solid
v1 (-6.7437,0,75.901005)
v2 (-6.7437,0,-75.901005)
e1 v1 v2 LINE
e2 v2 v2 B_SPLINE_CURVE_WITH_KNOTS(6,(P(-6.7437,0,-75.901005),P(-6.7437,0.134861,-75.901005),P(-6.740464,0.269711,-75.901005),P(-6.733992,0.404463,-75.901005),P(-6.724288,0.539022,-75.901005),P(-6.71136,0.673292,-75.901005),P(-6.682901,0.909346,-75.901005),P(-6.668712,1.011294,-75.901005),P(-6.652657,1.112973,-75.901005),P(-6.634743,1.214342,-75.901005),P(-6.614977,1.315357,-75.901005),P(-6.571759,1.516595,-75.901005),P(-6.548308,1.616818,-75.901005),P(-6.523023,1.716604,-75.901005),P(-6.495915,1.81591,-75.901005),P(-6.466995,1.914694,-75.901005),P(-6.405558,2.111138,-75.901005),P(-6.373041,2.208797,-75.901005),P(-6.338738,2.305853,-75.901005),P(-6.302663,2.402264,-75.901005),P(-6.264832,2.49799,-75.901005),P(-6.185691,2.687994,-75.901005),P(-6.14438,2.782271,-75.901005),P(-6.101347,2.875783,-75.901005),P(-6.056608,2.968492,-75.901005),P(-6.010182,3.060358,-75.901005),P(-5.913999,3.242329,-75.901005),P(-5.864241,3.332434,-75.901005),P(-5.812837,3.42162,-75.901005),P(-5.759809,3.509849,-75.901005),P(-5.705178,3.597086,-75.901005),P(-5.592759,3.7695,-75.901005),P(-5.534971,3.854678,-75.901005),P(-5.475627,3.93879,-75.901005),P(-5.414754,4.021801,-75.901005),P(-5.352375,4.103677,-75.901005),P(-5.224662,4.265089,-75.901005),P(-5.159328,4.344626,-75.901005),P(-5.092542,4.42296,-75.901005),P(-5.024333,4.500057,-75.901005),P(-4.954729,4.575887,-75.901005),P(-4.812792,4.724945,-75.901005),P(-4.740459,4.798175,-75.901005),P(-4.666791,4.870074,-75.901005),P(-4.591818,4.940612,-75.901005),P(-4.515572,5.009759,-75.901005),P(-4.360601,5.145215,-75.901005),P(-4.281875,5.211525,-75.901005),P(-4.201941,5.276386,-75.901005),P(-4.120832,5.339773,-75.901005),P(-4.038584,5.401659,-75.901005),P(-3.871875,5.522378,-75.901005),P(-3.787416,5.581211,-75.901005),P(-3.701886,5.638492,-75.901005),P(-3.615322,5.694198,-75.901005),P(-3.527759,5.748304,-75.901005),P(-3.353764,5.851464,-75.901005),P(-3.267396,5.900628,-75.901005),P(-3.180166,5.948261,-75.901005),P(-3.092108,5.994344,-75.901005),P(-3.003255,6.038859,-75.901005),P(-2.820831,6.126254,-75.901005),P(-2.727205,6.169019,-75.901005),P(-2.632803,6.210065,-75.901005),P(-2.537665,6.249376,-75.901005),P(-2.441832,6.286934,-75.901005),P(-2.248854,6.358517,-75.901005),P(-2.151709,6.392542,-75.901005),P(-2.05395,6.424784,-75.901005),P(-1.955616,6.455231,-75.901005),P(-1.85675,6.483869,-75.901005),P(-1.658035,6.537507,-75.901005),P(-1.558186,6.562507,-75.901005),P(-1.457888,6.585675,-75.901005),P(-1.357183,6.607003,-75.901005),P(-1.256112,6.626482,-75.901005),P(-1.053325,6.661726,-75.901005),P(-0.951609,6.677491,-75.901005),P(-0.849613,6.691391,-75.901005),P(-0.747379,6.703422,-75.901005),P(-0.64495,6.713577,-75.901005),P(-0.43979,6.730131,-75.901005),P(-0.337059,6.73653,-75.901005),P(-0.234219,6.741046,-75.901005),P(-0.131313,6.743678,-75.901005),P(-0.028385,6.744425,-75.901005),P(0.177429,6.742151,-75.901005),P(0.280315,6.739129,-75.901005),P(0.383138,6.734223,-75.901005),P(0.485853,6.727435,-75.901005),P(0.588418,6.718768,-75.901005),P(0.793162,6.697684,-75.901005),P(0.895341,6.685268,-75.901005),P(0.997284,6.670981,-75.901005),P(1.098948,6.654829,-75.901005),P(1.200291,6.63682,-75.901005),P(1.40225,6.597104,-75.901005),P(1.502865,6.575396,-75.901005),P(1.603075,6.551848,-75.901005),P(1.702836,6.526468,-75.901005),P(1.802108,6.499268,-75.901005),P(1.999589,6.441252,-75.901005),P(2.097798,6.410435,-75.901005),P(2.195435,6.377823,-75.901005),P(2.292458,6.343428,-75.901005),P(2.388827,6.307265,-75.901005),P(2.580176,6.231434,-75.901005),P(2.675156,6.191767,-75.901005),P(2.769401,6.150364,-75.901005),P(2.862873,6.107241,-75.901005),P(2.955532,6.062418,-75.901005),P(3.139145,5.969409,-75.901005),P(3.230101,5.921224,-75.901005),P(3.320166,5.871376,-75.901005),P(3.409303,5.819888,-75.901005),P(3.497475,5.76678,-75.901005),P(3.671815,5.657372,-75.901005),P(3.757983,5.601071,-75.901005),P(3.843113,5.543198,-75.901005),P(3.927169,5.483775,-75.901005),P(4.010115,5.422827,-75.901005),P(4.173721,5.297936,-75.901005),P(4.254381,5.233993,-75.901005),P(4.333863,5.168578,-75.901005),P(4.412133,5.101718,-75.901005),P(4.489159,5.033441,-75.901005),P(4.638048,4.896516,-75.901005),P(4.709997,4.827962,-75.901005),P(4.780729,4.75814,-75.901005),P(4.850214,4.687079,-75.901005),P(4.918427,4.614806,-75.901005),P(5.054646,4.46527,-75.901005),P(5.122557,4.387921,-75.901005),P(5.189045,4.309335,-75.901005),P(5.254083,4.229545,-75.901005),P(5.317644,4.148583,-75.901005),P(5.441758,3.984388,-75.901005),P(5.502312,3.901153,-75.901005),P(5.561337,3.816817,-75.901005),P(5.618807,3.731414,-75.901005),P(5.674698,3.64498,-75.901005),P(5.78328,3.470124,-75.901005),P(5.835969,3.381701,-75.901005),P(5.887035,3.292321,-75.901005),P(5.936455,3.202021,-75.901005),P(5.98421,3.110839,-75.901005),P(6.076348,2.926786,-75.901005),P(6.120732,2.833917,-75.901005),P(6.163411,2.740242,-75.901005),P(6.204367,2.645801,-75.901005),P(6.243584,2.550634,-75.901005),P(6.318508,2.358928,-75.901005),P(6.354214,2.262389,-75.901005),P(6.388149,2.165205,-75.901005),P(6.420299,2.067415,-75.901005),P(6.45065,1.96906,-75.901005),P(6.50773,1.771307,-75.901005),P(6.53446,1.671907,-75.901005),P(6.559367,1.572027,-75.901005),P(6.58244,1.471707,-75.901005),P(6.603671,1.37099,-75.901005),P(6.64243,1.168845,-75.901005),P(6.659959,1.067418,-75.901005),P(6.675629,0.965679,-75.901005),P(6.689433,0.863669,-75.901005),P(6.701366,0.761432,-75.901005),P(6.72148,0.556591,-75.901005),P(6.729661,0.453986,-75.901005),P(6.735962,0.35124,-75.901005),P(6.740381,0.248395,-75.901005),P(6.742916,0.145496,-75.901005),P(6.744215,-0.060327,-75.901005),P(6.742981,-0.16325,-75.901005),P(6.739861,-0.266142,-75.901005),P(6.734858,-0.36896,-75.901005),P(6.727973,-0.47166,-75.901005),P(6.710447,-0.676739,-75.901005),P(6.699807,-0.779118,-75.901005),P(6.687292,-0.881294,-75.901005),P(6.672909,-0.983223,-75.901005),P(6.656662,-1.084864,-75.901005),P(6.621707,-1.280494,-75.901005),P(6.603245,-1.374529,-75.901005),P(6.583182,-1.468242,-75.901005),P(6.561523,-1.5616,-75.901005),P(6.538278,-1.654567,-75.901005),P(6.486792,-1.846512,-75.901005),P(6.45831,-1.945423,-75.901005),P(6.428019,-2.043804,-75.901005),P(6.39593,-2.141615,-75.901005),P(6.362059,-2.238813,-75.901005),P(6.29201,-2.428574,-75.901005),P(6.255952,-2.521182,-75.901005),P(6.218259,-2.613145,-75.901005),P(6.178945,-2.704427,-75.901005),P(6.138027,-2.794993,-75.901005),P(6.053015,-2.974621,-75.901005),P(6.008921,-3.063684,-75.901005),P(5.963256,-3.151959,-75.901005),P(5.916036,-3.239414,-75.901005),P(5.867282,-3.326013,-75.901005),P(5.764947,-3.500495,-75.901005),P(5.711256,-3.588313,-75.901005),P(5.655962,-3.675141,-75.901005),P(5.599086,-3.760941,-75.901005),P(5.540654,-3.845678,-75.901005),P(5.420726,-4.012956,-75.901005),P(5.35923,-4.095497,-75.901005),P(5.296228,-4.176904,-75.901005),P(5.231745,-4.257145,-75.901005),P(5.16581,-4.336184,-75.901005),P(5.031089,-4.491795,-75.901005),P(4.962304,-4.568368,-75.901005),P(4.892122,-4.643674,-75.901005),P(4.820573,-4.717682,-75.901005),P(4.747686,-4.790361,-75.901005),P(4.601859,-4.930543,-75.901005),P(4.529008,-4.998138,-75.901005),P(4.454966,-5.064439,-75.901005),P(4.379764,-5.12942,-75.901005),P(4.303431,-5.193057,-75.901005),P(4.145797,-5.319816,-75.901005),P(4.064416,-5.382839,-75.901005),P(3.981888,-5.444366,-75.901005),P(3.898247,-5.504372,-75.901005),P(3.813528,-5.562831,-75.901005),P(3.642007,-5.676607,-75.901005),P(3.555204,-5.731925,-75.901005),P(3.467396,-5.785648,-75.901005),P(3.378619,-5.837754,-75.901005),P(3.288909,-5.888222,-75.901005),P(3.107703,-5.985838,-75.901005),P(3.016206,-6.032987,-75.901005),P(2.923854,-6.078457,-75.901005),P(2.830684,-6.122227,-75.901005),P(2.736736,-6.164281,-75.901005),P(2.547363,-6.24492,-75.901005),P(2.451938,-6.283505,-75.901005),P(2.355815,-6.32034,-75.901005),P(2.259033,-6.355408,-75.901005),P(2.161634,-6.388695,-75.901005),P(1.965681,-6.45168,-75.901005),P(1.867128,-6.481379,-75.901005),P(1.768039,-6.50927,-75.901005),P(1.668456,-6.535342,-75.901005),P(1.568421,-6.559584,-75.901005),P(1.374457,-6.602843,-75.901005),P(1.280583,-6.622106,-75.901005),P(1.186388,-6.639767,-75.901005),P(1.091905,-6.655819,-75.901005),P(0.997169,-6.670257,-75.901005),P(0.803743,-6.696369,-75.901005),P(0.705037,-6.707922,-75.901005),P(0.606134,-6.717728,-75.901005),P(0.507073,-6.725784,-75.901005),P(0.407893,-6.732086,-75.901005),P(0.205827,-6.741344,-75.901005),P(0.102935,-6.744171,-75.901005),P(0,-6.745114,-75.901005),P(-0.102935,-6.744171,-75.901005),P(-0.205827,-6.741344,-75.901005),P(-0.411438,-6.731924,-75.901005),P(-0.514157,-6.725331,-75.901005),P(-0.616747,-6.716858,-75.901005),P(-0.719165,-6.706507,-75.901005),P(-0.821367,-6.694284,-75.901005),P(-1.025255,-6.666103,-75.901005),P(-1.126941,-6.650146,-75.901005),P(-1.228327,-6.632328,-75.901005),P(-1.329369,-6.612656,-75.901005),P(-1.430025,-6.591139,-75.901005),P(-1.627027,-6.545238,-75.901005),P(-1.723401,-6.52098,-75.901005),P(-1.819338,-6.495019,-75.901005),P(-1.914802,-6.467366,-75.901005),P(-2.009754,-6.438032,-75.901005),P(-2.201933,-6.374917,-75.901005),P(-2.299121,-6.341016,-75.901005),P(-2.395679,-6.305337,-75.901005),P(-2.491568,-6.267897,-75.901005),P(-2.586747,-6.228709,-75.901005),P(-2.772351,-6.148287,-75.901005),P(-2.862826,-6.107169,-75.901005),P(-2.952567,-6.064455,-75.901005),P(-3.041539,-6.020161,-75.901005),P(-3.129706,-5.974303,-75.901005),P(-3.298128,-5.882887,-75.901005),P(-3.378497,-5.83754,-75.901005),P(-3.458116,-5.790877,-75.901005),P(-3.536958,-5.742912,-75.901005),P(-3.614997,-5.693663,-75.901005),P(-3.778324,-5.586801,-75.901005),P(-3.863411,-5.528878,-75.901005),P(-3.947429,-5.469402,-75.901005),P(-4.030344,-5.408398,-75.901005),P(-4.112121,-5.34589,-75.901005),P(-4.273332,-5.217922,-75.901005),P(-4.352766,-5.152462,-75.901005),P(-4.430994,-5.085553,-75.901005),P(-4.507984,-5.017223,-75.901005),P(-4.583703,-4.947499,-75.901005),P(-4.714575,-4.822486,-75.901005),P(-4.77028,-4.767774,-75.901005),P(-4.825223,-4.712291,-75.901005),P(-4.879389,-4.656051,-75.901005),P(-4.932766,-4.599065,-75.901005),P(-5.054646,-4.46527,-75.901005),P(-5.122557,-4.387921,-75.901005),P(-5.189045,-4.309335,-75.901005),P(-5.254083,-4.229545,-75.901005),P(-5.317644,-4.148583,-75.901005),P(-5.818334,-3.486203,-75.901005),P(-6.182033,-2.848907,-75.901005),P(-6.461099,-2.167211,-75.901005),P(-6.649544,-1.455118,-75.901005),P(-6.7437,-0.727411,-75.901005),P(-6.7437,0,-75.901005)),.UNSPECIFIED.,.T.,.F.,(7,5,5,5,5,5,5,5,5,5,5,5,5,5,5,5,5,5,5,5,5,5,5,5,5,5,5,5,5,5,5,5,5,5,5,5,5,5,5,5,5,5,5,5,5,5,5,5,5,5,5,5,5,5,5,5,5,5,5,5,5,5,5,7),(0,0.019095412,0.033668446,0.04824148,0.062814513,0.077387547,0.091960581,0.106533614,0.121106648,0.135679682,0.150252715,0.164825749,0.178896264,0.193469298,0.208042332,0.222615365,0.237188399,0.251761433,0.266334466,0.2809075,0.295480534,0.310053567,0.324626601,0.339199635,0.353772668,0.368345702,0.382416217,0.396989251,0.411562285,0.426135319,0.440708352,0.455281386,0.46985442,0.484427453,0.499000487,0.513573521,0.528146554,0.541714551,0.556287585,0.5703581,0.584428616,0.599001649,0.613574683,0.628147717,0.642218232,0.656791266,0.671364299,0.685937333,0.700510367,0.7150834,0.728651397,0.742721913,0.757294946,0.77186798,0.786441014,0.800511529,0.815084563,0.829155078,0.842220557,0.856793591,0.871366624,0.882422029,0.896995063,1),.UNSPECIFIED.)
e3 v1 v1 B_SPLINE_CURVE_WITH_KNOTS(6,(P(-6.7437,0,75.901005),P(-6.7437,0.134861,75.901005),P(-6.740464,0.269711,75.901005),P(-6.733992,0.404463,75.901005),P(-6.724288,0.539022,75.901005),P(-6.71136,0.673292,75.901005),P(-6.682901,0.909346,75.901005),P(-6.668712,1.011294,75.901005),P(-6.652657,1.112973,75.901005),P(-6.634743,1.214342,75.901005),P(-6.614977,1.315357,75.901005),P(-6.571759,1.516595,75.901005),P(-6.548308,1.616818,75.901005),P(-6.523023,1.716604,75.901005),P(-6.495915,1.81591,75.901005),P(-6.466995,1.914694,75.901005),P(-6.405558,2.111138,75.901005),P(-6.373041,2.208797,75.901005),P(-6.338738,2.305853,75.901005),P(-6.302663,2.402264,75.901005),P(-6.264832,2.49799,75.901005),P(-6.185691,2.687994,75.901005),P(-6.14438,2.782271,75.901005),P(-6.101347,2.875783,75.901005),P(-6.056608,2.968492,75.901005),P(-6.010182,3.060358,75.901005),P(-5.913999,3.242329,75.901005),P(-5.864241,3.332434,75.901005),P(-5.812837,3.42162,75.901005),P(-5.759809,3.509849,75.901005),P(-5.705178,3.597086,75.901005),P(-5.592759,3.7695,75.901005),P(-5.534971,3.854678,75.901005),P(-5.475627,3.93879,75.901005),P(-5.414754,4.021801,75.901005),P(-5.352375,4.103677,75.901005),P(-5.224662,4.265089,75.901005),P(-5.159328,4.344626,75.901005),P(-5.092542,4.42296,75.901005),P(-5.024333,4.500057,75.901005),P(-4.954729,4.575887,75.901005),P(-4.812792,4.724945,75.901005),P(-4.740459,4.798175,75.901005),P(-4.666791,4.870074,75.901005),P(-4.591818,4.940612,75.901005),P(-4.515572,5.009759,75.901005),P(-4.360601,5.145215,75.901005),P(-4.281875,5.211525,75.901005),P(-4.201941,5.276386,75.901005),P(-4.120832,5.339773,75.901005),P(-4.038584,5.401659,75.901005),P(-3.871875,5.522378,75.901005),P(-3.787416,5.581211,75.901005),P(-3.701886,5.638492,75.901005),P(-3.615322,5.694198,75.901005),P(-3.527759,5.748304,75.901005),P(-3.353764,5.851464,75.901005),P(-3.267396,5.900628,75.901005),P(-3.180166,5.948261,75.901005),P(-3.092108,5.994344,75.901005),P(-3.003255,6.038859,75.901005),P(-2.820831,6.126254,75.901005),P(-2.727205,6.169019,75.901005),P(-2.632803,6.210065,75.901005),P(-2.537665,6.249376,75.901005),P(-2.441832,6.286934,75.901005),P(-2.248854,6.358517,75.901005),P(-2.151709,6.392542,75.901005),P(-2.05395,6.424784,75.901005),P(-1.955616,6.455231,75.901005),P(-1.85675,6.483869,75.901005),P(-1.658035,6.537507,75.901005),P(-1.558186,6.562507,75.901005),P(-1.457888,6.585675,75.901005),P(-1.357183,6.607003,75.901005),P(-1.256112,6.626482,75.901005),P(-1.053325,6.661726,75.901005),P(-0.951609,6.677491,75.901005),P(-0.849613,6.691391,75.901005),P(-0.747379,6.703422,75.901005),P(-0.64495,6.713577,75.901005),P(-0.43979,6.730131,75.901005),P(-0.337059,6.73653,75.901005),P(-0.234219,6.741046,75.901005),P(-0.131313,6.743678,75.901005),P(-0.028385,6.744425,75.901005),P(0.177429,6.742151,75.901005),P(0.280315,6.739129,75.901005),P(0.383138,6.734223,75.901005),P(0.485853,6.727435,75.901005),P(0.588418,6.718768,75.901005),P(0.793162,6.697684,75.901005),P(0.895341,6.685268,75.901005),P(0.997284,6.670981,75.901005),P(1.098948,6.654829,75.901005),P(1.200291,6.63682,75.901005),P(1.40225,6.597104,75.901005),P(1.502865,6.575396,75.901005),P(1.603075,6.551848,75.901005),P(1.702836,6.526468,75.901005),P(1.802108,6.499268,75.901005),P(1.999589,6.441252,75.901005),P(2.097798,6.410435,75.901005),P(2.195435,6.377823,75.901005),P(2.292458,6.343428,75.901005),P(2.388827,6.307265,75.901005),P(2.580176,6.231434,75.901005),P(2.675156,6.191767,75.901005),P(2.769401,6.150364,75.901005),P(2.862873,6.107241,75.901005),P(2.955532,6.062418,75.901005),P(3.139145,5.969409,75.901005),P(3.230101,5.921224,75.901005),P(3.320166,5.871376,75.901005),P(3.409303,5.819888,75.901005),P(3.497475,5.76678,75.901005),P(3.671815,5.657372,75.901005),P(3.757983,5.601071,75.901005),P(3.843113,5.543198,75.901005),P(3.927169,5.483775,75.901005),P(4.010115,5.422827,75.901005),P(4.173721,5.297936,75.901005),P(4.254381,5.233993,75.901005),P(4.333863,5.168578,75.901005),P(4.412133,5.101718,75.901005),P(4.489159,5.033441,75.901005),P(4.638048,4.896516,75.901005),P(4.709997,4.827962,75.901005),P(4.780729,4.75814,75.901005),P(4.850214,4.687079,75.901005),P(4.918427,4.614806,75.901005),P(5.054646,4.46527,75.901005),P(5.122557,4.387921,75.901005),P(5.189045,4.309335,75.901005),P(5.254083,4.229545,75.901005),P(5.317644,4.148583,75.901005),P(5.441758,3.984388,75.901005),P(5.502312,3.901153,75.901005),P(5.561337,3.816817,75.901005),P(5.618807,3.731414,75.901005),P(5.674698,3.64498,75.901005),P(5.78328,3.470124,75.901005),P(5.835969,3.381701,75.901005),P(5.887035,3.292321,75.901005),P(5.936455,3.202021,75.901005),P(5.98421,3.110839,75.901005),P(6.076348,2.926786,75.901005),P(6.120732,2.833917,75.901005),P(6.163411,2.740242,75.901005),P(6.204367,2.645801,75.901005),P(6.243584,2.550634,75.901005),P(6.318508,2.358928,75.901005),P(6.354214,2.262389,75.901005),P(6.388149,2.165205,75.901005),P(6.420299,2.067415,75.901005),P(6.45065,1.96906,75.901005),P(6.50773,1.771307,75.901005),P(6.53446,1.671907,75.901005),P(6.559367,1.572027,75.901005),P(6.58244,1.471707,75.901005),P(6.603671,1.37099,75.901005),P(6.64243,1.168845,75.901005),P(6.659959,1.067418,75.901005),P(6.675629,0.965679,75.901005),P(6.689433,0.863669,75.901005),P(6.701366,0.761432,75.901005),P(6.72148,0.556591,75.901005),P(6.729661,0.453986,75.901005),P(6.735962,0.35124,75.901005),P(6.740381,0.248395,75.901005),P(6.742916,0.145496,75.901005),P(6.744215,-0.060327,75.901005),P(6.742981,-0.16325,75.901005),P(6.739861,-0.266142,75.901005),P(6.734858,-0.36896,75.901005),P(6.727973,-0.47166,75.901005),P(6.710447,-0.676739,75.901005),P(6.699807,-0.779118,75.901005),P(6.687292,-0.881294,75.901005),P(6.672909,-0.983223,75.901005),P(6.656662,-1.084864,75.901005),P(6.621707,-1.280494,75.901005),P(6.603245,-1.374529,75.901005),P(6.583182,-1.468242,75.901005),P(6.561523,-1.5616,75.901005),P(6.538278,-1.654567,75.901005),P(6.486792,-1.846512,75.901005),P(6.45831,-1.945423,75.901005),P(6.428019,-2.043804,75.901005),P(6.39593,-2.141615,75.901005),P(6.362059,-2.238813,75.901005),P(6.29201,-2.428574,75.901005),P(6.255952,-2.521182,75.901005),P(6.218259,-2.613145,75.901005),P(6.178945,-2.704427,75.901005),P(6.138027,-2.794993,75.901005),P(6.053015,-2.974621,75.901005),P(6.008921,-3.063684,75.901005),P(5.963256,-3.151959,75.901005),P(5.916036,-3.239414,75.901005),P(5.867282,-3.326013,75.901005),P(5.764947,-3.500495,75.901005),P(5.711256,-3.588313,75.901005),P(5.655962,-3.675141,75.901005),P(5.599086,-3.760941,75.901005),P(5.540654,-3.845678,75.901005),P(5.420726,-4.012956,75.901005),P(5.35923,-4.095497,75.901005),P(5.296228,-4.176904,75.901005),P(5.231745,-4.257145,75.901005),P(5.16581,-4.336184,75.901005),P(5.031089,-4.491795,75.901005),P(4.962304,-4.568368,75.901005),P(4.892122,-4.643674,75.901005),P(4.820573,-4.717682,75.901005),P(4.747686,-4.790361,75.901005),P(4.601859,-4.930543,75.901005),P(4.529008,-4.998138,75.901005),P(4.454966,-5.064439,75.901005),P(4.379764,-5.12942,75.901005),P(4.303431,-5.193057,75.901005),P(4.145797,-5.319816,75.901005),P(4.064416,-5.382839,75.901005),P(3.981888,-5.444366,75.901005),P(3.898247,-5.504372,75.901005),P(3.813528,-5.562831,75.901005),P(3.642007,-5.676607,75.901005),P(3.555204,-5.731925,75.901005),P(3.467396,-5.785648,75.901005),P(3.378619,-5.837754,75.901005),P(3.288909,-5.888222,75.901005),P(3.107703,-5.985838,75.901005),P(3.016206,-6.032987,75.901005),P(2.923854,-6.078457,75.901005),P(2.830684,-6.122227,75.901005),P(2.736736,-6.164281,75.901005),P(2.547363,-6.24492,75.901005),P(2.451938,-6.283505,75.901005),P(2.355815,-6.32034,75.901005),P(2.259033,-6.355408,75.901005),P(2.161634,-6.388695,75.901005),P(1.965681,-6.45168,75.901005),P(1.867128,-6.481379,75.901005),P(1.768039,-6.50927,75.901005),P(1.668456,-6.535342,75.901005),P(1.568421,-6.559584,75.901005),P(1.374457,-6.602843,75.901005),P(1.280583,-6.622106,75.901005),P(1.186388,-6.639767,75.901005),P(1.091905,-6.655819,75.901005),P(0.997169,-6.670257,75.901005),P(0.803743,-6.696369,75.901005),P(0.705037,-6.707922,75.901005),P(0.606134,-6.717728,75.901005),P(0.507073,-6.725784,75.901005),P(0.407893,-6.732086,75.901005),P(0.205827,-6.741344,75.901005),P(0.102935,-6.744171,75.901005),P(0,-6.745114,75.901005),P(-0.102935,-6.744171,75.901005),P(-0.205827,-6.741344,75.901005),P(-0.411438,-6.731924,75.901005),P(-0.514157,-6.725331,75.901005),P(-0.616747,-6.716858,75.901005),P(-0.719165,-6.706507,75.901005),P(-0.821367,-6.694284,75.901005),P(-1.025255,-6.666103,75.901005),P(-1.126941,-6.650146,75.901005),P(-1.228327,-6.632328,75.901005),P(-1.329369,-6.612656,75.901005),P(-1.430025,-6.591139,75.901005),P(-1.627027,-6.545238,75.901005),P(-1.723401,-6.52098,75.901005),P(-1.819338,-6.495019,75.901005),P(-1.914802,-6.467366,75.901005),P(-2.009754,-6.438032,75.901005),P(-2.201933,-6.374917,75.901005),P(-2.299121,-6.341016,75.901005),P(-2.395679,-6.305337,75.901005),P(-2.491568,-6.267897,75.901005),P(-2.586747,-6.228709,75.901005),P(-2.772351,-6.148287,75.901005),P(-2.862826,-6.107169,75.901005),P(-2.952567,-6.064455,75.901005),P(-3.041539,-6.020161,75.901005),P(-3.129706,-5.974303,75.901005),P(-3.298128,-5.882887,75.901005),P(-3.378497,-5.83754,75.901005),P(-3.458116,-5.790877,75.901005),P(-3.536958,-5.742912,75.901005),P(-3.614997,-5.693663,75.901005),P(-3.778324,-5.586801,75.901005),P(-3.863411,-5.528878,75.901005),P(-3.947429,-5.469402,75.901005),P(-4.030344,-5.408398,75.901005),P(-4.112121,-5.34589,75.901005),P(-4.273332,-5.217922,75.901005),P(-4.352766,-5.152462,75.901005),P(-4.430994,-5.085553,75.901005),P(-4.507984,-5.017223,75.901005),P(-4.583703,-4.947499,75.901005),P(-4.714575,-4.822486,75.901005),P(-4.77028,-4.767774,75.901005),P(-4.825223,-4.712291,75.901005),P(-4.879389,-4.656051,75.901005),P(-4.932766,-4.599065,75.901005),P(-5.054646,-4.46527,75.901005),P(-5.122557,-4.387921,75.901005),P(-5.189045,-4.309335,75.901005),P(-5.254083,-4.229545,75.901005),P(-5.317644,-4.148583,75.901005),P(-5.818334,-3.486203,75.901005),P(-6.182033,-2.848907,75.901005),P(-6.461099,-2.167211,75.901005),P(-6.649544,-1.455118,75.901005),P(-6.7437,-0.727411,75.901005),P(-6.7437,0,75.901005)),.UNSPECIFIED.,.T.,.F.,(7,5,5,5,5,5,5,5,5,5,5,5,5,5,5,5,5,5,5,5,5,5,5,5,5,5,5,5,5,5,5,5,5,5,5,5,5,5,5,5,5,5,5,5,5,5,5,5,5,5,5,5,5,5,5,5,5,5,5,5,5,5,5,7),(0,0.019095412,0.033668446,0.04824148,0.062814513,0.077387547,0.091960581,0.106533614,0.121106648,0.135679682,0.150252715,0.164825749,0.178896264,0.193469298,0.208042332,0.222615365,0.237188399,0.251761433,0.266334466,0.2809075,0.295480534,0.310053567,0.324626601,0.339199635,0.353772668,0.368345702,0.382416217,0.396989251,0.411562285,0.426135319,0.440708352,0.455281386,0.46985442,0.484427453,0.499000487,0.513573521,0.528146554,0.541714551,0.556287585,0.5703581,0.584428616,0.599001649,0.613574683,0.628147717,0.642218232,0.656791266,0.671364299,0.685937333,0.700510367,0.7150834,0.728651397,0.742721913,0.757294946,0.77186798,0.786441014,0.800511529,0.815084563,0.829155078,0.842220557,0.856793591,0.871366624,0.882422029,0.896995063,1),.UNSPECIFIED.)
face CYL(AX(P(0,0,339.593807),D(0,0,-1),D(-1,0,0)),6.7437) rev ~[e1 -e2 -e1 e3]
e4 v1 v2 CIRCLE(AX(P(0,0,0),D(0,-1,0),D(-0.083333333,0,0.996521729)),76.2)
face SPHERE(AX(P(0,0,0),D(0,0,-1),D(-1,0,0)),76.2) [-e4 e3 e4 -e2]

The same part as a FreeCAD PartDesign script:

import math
import FreeCAD as App
import Part
import Sketcher

V = App.Vector
Q = App.Units.Quantity

doc = App.newDocument("Part")
body = doc.addObject("PartDesign::Body", "Body")

sketch1 = body.newObject("Sketcher::SketchObject", "Sketch")
sketch1.AttachmentSupport = (doc.getObject("XZ_Plane"), [""])
sketch1.MapMode = "FlatFace"
sketch1.addGeometry([
    Part.LineSegment(V(-6.35, -75.934956, 0), V(0, -75.934956, 0)),
    Part.LineSegment(V(0, -75.934956, 0), V(0, 75.934956, 0)),
    Part.LineSegment(V(0, 75.934956, 0), V(-6.35, 75.934956, 0)),
    Part.ArcOfCircle(Part.Circle(V(0, 0, 0), V(0, 0, 1), 76.2), math.radians(94.780192), math.radians(265.219808)),
], False)
sketch1.addConstraint([
    Sketcher.Constraint("Coincident", 0, 2, 1, 1),
    Sketcher.Constraint("Coincident", 1, 2, 2, 1),
    Sketcher.Constraint("Coincident", 2, 2, 3, 1),
    Sketcher.Constraint("Coincident", 3, 2, 0, 1),
    Sketcher.Constraint("Horizontal", 0),
    Sketcher.Constraint("Vertical", 1),
    Sketcher.Constraint("Horizontal", 2),
    Sketcher.Constraint("Coincident", 3, 3, -1, 1),
    Sketcher.Constraint("Symmetric", 0, 2, 1, 2, -1, 1),
    Sketcher.Constraint("Radius", 3, Q("3 in")),
    Sketcher.Constraint("DistanceX", 0, 1, 0, 2, Q("0.25 in")),
])
revolution = body.newObject("PartDesign::Revolution", "Revolution")
revolution.Profile = sketch1
revolution.ReferenceAxis = (sketch1, ["V_Axis"])
revolution.Angle = 360

sketch2 = body.newObject("Sketcher::SketchObject", "Sketch001")
sketch2.AttachmentSupport = (doc.getObject("XY_Plane"), [""])
sketch2.MapMode = "FlatFace"
sketch2.AttachmentOffset = App.Placement(V(0, 0, 75.934956), App.Rotation())
sketch2.addGeometry(Part.Circle(V(0, 0, 0), V(0, 0, 1), 6.7437), False)
sketch2.addConstraint([
    Sketcher.Constraint("Coincident", 0, 3, -1, 1),
    Sketcher.Constraint("Diameter", 0, Q("0.531 in")),
])
doc.recompute()
hole = body.newObject("PartDesign::Hole", "Hole")
hole.Profile = sketch2
hole.ThreadType = "None"
hole.Diameter = Q("0.531 in")
hole.DepthType = "ThroughAll"

doc.recompute()
